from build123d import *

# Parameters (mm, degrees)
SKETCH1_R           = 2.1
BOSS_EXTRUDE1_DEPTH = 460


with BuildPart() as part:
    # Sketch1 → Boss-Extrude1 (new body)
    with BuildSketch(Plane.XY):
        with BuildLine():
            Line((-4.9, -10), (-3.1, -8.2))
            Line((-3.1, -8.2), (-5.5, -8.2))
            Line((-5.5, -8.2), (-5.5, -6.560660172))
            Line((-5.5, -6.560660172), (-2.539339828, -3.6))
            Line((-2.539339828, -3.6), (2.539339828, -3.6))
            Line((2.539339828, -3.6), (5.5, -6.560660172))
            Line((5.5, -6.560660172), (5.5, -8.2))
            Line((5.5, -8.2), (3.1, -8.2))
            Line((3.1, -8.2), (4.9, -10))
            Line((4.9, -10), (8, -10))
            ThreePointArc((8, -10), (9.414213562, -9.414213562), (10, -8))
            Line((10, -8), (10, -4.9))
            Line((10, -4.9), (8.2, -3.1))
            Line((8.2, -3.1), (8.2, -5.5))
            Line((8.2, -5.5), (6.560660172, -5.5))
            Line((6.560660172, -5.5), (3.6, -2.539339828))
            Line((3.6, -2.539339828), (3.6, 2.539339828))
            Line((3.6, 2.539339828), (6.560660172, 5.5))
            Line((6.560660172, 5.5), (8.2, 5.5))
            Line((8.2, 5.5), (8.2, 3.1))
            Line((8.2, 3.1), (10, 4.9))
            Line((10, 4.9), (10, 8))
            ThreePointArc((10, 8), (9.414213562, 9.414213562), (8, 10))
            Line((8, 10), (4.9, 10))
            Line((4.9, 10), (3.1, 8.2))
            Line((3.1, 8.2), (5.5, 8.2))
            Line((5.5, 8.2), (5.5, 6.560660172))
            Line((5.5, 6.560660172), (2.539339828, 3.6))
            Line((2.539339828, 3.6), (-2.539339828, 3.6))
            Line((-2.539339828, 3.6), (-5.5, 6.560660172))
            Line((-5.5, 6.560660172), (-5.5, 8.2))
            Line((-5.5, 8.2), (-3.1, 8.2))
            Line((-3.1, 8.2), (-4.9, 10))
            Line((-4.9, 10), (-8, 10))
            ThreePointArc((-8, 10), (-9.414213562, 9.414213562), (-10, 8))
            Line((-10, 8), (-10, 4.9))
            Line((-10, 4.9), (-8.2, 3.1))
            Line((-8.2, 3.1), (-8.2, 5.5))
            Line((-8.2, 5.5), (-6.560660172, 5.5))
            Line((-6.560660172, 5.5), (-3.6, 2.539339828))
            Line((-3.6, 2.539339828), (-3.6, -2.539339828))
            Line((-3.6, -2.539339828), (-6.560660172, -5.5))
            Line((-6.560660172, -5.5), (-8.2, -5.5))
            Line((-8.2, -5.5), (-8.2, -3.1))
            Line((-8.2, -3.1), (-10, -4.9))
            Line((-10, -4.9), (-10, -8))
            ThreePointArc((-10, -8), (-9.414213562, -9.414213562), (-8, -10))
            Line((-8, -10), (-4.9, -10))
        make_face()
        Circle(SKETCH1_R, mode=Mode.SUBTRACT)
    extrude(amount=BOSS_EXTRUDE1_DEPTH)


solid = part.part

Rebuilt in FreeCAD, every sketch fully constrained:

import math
import FreeCAD as App
import Part
import Sketcher

doc = App.newDocument("Part")
body = doc.addObject("PartDesign::Body", "Body")

# Sketch on XY plane
sketch1 = doc.addObject("Sketcher::SketchObject", "Sketch")
body.addObject(sketch1)
sketch1.AttachmentSupport = (doc.XY_Plane, [""])
sketch1.MapMode = "FlatFace"
sketch1.addGeometry(Part.LineSegment(App.Vector(-4.9, -10, 0), App.Vector(-3.1, -8.2, 0)), False)
sketch1.addGeometry(Part.LineSegment(App.Vector(-3.1, -8.2, 0), App.Vector(-5.5, -8.2, 0)), False)
sketch1.addGeometry(Part.LineSegment(App.Vector(-5.5, -8.2, 0), App.Vector(-5.5, -6.56066, 0)), False)
sketch1.addGeometry(Part.LineSegment(App.Vector(-5.5, -6.56066, 0), App.Vector(-2.53934, -3.6, 0)), False)
sketch1.addGeometry(Part.LineSegment(App.Vector(-2.53934, -3.6, 0), App.Vector(2.53934, -3.6, 0)), False)
sketch1.addGeometry(Part.LineSegment(App.Vector(2.53934, -3.6, 0), App.Vector(5.5, -6.56066, 0)), False)
sketch1.addGeometry(Part.LineSegment(App.Vector(5.5, -6.56066, 0), App.Vector(5.5, -8.2, 0)), False)
sketch1.addGeometry(Part.LineSegment(App.Vector(5.5, -8.2, 0), App.Vector(3.1, -8.2, 0)), False)
sketch1.addGeometry(Part.LineSegment(App.Vector(3.1, -8.2, 0), App.Vector(4.9, -10, 0)), False)
sketch1.addGeometry(Part.LineSegment(App.Vector(4.9, -10, 0), App.Vector(8, -10, 0)), False)
sketch1.addGeometry(Part.ArcOfCircle(Part.Circle(App.Vector(8, -8, 0), App.Vector(0, 0, 1), 2), math.radians(-90), math.radians(0)), False)
sketch1.addGeometry(Part.LineSegment(App.Vector(10, -8, 0), App.Vector(10, -4.9, 0)), False)
sketch1.addGeometry(Part.LineSegment(App.Vector(10, -4.9, 0), App.Vector(8.2, -3.1, 0)), False)
sketch1.addGeometry(Part.LineSegment(App.Vector(8.2, -3.1, 0), App.Vector(8.2, -5.5, 0)), False)
sketch1.addGeometry(Part.LineSegment(App.Vector(8.2, -5.5, 0), App.Vector(6.56066, -5.5, 0)), False)
sketch1.addGeometry(Part.LineSegment(App.Vector(6.56066, -5.5, 0), App.Vector(3.6, -2.53934, 0)), False)
sketch1.addGeometry(Part.LineSegment(App.Vector(3.6, -2.53934, 0), App.Vector(3.6, 2.53934, 0)), False)
sketch1.addGeometry(Part.LineSegment(App.Vector(3.6, 2.53934, 0), App.Vector(6.56066, 5.5, 0)), False)
sketch1.addGeometry(Part.LineSegment(App.Vector(6.56066, 5.5, 0), App.Vector(8.2, 5.5, 0)), False)
sketch1.addGeometry(Part.LineSegment(App.Vector(8.2, 5.5, 0), App.Vector(8.2, 3.1, 0)), False)
sketch1.addGeometry(Part.LineSegment(App.Vector(8.2, 3.1, 0), App.Vector(10, 4.9, 0)), False)
sketch1.addGeometry(Part.LineSegment(App.Vector(10, 4.9, 0), App.Vector(10, 8, 0)), False)
sketch1.addGeometry(Part.ArcOfCircle(Part.Circle(App.Vector(8, 8, 0), App.Vector(0, 0, 1), 2), math.radians(0), math.radians(90)), False)
sketch1.addGeometry(Part.LineSegment(App.Vector(8, 10, 0), App.Vector(4.9, 10, 0)), False)
sketch1.addGeometry(Part.LineSegment(App.Vector(4.9, 10, 0), App.Vector(3.1, 8.2, 0)), False)
sketch1.addGeometry(Part.LineSegment(App.Vector(3.1, 8.2, 0), App.Vector(5.5, 8.2, 0)), False)
sketch1.addGeometry(Part.LineSegment(App.Vector(5.5, 8.2, 0), App.Vector(5.5, 6.56066, 0)), False)
sketch1.addGeometry(Part.LineSegment(App.Vector(5.5, 6.56066, 0), App.Vector(2.53934, 3.6, 0)), False)
sketch1.addGeometry(Part.LineSegment(App.Vector(2.53934, 3.6, 0), App.Vector(-2.53934, 3.6, 0)), False)
sketch1.addGeometry(Part.LineSegment(App.Vector(-2.53934, 3.6, 0), App.Vector(-5.5, 6.56066, 0)), False)
sketch1.addGeometry(Part.LineSegment(App.Vector(-5.5, 6.56066, 0), App.Vector(-5.5, 8.2, 0)), False)
sketch1.addGeometry(Part.LineSegment(App.Vector(-5.5, 8.2, 0), App.Vector(-3.1, 8.2, 0)), False)
sketch1.addGeometry(Part.LineSegment(App.Vector(-3.1, 8.2, 0), App.Vector(-4.9, 10, 0)), False)
sketch1.addGeometry(Part.LineSegment(App.Vector(-4.9, 10, 0), App.Vector(-8, 10, 0)), False)
sketch1.addGeometry(Part.ArcOfCircle(Part.Circle(App.Vector(-8, 8, 0), App.Vector(0, 0, 1), 2), math.radians(90), math.radians(180)), False)
sketch1.addGeometry(Part.LineSegment(App.Vector(-10, 8, 0), App.Vector(-10, 4.9, 0)), False)
sketch1.addGeometry(Part.LineSegment(App.Vector(-10, 4.9, 0), App.Vector(-8.2, 3.1, 0)), False)
sketch1.addGeometry(Part.LineSegment(App.Vector(-8.2, 3.1, 0), App.Vector(-8.2, 5.5, 0)), False)
sketch1.addGeometry(Part.LineSegment(App.Vector(-8.2, 5.5, 0), App.Vector(-6.56066, 5.5, 0)), False)
sketch1.addGeometry(Part.LineSegment(App.Vector(-6.56066, 5.5, 0), App.Vector(-3.6, 2.53934, 0)), False)
sketch1.addGeometry(Part.LineSegment(App.Vector(-3.6, 2.53934, 0), App.Vector(-3.6, -2.53934, 0)), False)
sketch1.addGeometry(Part.LineSegment(App.Vector(-3.6, -2.53934, 0), App.Vector(-6.56066, -5.5, 0)), False)
sketch1.addGeometry(Part.LineSegment(App.Vector(-6.56066, -5.5, 0), App.Vector(-8.2, -5.5, 0)), False)
sketch1.addGeometry(Part.LineSegment(App.Vector(-8.2, -5.5, 0), App.Vector(-8.2, -3.1, 0)), False)
sketch1.addGeometry(Part.LineSegment(App.Vector(-8.2, -3.1, 0), App.Vector(-10, -4.9, 0)), False)
sketch1.addGeometry(Part.LineSegment(App.Vector(-10, -4.9, 0), App.Vector(-10, -8, 0)), False)
sketch1.addGeometry(Part.ArcOfCircle(Part.Circle(App.Vector(-8, -8, 0), App.Vector(0, 0, 1), 2), math.radians(-180), math.radians(-90)), False)
sketch1.addGeometry(Part.LineSegment(App.Vector(-8, -10, 0), App.Vector(-4.9, -10, 0)), False)
sketch1.addGeometry(Part.Circle(App.Vector(0, 0, 0), App.Vector(0, 0, 1), 2.1), False)
sketch1.addConstraint(Sketcher.Constraint("Coincident", 0, 2, 1, 1))
sketch1.addConstraint(Sketcher.Constraint("Coincident", 1, 2, 2, 1))
sketch1.addConstraint(Sketcher.Constraint("Coincident", 2, 2, 3, 1))
sketch1.addConstraint(Sketcher.Constraint("Coincident", 3, 2, 4, 1))
sketch1.addConstraint(Sketcher.Constraint("Coincident", 4, 2, 5, 1))
sketch1.addConstraint(Sketcher.Constraint("Coincident", 5, 2, 6, 1))
sketch1.addConstraint(Sketcher.Constraint("Coincident", 6, 2, 7, 1))
sketch1.addConstraint(Sketcher.Constraint("Coincident", 7, 2, 8, 1))
sketch1.addConstraint(Sketcher.Constraint("Coincident", 8, 2, 9, 1))
sketch1.addConstraint(Sketcher.Constraint("Tangent", 9, 2, 10, 1))
sketch1.addConstraint(Sketcher.Constraint("Tangent", 10, 2, 11, 1))
sketch1.addConstraint(Sketcher.Constraint("Coincident", 11, 2, 12, 1))
sketch1.addConstraint(Sketcher.Constraint("Coincident", 12, 2, 13, 1))
sketch1.addConstraint(Sketcher.Constraint("Coincident", 13, 2, 14, 1))
sketch1.addConstraint(Sketcher.Constraint("Coincident", 14, 2, 15, 1))
sketch1.addConstraint(Sketcher.Constraint("Coincident", 15, 2, 16, 1))
sketch1.addConstraint(Sketcher.Constraint("Coincident", 16, 2, 17, 1))
sketch1.addConstraint(Sketcher.Constraint("Coincident", 17, 2, 18, 1))
sketch1.addConstraint(Sketcher.Constraint("Coincident", 18, 2, 19, 1))
sketch1.addConstraint(Sketcher.Constraint("Coincident", 19, 2, 20, 1))
sketch1.addConstraint(Sketcher.Constraint("Coincident", 20, 2, 21, 1))
sketch1.addConstraint(Sketcher.Constraint("Tangent", 21, 2, 22, 1))
sketch1.addConstraint(Sketcher.Constraint("Tangent", 22, 2, 23, 1))
sketch1.addConstraint(Sketcher.Constraint("Coincident", 23, 2, 24, 1))
sketch1.addConstraint(Sketcher.Constraint("Coincident", 24, 2, 25, 1))
sketch1.addConstraint(Sketcher.Constraint("Coincident", 25, 2, 26, 1))
sketch1.addConstraint(Sketcher.Constraint("Coincident", 26, 2, 27, 1))
sketch1.addConstraint(Sketcher.Constraint("Coincident", 27, 2, 28, 1))
sketch1.addConstraint(Sketcher.Constraint("Coincident", 28, 2, 29, 1))
sketch1.addConstraint(Sketcher.Constraint("Coincident", 29, 2, 30, 1))
sketch1.addConstraint(Sketcher.Constraint("Coincident", 30, 2, 31, 1))
sketch1.addConstraint(Sketcher.Constraint("Coincident", 31, 2, 32, 1))
sketch1.addConstraint(Sketcher.Constraint("Coincident", 32, 2, 33, 1))
sketch1.addConstraint(Sketcher.Constraint("Tangent", 33, 2, 34, 1))
sketch1.addConstraint(Sketcher.Constraint("Tangent", 34, 2, 35, 1))
sketch1.addConstraint(Sketcher.Constraint("Coincident", 35, 2, 36, 1))
sketch1.addConstraint(Sketcher.Constraint("Coincident", 36, 2, 37, 1))
sketch1.addConstraint(Sketcher.Constraint("Coincident", 37, 2, 38, 1))
sketch1.addConstraint(Sketcher.Constraint("Coincident", 38, 2, 39, 1))
sketch1.addConstraint(Sketcher.Constraint("Coincident", 39, 2, 40, 1))
sketch1.addConstraint(Sketcher.Constraint("Coincident", 40, 2, 41, 1))
sketch1.addConstraint(Sketcher.Constraint("Coincident", 41, 2, 42, 1))
sketch1.addConstraint(Sketcher.Constraint("Coincident", 42, 2, 43, 1))
sketch1.addConstraint(Sketcher.Constraint("Coincident", 43, 2, 44, 1))
sketch1.addConstraint(Sketcher.Constraint("Coincident", 44, 2, 45, 1))
sketch1.addConstraint(Sketcher.Constraint("Tangent", 45, 2, 46, 1))
sketch1.addConstraint(Sketcher.Constraint("Tangent", 46, 2, 47, 1))
sketch1.addConstraint(Sketcher.Constraint("Coincident", 47, 2, 0, 1))
sketch1.addConstraint(Sketcher.Constraint("Horizontal", 1))
sketch1.addConstraint(Sketcher.Constraint("Vertical", 2))
sketch1.addConstraint(Sketcher.Constraint("Horizontal", 4))
sketch1.addConstraint(Sketcher.Constraint("Vertical", 6))
sketch1.addConstraint(Sketcher.Constraint("Horizontal", 7))
sketch1.addConstraint(Sketcher.Constraint("Horizontal", 9))
sketch1.addConstraint(Sketcher.Constraint("Vertical", 11))
sketch1.addConstraint(Sketcher.Constraint("Vertical", 13))
sketch1.addConstraint(Sketcher.Constraint("Horizontal", 14))
sketch1.addConstraint(Sketcher.Constraint("Vertical", 16))
sketch1.addConstraint(Sketcher.Constraint("Horizontal", 18))
sketch1.addConstraint(Sketcher.Constraint("Vertical", 19))
sketch1.addConstraint(Sketcher.Constraint("Vertical", 21))
sketch1.addConstraint(Sketcher.Constraint("Horizontal", 23))
sketch1.addConstraint(Sketcher.Constraint("Horizontal", 25))
sketch1.addConstraint(Sketcher.Constraint("Vertical", 26))
sketch1.addConstraint(Sketcher.Constraint("Horizontal", 28))
sketch1.addConstraint(Sketcher.Constraint("Vertical", 30))
sketch1.addConstraint(Sketcher.Constraint("Horizontal", 31))
sketch1.addConstraint(Sketcher.Constraint("Horizontal", 33))
sketch1.addConstraint(Sketcher.Constraint("Vertical", 35))
sketch1.addConstraint(Sketcher.Constraint("Vertical", 37))
sketch1.addConstraint(Sketcher.Constraint("Horizontal", 38))
sketch1.addConstraint(Sketcher.Constraint("Vertical", 40))
sketch1.addConstraint(Sketcher.Constraint("Horizontal", 42))
sketch1.addConstraint(Sketcher.Constraint("Vertical", 43))
sketch1.addConstraint(Sketcher.Constraint("Vertical", 45))
sketch1.addConstraint(Sketcher.Constraint("Horizontal", 47))
sketch1.addConstraint(Sketcher.Constraint("Coincident", 48, 3, -1, 1))
sketch1.addConstraint(Sketcher.Constraint("Equal", 10, 22))
sketch1.addConstraint(Sketcher.Constraint("Equal", 22, 34))
sketch1.addConstraint(Sketcher.Constraint("Equal", 34, 46))
sketch1.addConstraint(Sketcher.Constraint("Symmetric", 10, 3, 34, 3, -1, 1))
sketch1.addConstraint(Sketcher.Constraint("Symmetric", 22, 3, 46, 3, -1, 1))
sketch1.addConstraint(Sketcher.Constraint("Symmetric", 0, 2, 24, 2, -1, 1))
sketch1.addConstraint(Sketcher.Constraint("Symmetric", 2, 2, 26, 2, -1, 1))
sketch1.addConstraint(Sketcher.Constraint("Symmetric", 3, 2, 27, 2, -1, 1))
sketch1.addConstraint(Sketcher.Constraint("Symmetric", 5, 2, 29, 2, -1, 1))
sketch1.addConstraint(Sketcher.Constraint("Symmetric", 7, 2, 31, 2, -1, 1))
sketch1.addConstraint(Sketcher.Constraint("Symmetric", 12, 2, 36, 2, -1, 1))
sketch1.addConstraint(Sketcher.Constraint("Symmetric", 14, 2, 38, 2, -1, 1))
sketch1.addConstraint(Sketcher.Constraint("Symmetric", 15, 2, 39, 2, -1, 1))
sketch1.addConstraint(Sketcher.Constraint("Symmetric", 17, 2, 41, 2, -1, 1))
sketch1.addConstraint(Sketcher.Constraint("Symmetric", 19, 2, 43, 2, -1, 1))
sketch1.addConstraint(Sketcher.Constraint("Symmetric", 22, 3, 34, 3, -2))
sketch1.addConstraint(Sketcher.Constraint("Symmetric", 2, 2, 5, 2, -2))
sketch1.addConstraint(Sketcher.Constraint("Symmetric", 0, 2, 7, 2, -2))
sketch1.addConstraint(Sketcher.Constraint("Symmetric", 19, 2, 36, 2, -2))
sketch1.addConstraint(Sketcher.Constraint("Symmetric", 17, 2, 38, 2, -2))
sketch1.addConstraint(Sketcher.Constraint("Parallel", 0, 3))
sketch1.addConstraint(Sketcher.Constraint("Perpendicular", 3, 5))
sketch1.addConstraint(Sketcher.Constraint("Parallel", 5, 8))
sketch1.addConstraint(Sketcher.Constraint("Parallel", 8, 12))
sketch1.addConstraint(Sketcher.Constraint("Parallel", 12, 15))
sketch1.addConstraint(Sketcher.Constraint("Perpendicular", 15, 17))
sketch1.addConstraint(Sketcher.Constraint("Parallel", 17, 20))
sketch1.addConstraint(Sketcher.Constraint("Parallel", 20, 24))
sketch1.addConstraint(Sketcher.Constraint("Perpendicular", 27, 29))
sketch1.addConstraint(Sketcher.Constraint("Parallel", 29, 32))
sketch1.addConstraint(Sketcher.Constraint("Parallel", 32, 36))
sketch1.addConstraint(Sketcher.Constraint("Perpendicular", 39, 41))
sketch1.addConstraint(Sketcher.Constraint("Parallel", 41, 44))
sketch1.addConstraint(Sketcher.Constraint("Horizontal", 20, 2, 35, 2))
sketch1.addConstraint(Sketcher.Constraint("Equal", 42, 2))
sketch1.addConstraint(Sketcher.Constraint("Equal", 47, 11))
sketch1.addConstraint(Sketcher.Constraint("Equal", 31, 13))
sketch1.addConstraint(Sketcher.Constraint("Equal", 28, 16))
sketch1.addConstraint(Sketcher.Constraint("Equal", 8, 12))
sketch1.addConstraint(Sketcher.Constraint("Equal", 5, 15))
sketch1.addConstraint(Sketcher.Constraint("Radius", 10, 2.0))
sketch1.addConstraint(Sketcher.Constraint("Diameter", 48, 4.2))
sketch1.addConstraint(Sketcher.Constraint("DistanceX", 1, 2, 1, 1, 2.4))
sketch1.addConstraint(Sketcher.Constraint("DistanceX", 9, 1, 9, 2, 3.1))
sketch1.addConstraint(Sketcher.Constraint("DistanceX", -1, 1, 10, 3, 8.0))
sketch1.addConstraint(Sketcher.Constraint("DistanceX", 0, 2, -1, 1, 3.1))
sketch1.addConstraint(Sketcher.Constraint("DistanceY", 3, 2, -1, 1, 3.6))
sketch1.addConstraint(Sketcher.Constraint("DistanceX", 4, 1, 4, 2, 5.07868))
pad1 = doc.addObject("PartDesign::Pad", "Pad")
body.addObject(pad1)
pad1.Profile = sketch1
pad1.Length = 460

doc.recompute()
